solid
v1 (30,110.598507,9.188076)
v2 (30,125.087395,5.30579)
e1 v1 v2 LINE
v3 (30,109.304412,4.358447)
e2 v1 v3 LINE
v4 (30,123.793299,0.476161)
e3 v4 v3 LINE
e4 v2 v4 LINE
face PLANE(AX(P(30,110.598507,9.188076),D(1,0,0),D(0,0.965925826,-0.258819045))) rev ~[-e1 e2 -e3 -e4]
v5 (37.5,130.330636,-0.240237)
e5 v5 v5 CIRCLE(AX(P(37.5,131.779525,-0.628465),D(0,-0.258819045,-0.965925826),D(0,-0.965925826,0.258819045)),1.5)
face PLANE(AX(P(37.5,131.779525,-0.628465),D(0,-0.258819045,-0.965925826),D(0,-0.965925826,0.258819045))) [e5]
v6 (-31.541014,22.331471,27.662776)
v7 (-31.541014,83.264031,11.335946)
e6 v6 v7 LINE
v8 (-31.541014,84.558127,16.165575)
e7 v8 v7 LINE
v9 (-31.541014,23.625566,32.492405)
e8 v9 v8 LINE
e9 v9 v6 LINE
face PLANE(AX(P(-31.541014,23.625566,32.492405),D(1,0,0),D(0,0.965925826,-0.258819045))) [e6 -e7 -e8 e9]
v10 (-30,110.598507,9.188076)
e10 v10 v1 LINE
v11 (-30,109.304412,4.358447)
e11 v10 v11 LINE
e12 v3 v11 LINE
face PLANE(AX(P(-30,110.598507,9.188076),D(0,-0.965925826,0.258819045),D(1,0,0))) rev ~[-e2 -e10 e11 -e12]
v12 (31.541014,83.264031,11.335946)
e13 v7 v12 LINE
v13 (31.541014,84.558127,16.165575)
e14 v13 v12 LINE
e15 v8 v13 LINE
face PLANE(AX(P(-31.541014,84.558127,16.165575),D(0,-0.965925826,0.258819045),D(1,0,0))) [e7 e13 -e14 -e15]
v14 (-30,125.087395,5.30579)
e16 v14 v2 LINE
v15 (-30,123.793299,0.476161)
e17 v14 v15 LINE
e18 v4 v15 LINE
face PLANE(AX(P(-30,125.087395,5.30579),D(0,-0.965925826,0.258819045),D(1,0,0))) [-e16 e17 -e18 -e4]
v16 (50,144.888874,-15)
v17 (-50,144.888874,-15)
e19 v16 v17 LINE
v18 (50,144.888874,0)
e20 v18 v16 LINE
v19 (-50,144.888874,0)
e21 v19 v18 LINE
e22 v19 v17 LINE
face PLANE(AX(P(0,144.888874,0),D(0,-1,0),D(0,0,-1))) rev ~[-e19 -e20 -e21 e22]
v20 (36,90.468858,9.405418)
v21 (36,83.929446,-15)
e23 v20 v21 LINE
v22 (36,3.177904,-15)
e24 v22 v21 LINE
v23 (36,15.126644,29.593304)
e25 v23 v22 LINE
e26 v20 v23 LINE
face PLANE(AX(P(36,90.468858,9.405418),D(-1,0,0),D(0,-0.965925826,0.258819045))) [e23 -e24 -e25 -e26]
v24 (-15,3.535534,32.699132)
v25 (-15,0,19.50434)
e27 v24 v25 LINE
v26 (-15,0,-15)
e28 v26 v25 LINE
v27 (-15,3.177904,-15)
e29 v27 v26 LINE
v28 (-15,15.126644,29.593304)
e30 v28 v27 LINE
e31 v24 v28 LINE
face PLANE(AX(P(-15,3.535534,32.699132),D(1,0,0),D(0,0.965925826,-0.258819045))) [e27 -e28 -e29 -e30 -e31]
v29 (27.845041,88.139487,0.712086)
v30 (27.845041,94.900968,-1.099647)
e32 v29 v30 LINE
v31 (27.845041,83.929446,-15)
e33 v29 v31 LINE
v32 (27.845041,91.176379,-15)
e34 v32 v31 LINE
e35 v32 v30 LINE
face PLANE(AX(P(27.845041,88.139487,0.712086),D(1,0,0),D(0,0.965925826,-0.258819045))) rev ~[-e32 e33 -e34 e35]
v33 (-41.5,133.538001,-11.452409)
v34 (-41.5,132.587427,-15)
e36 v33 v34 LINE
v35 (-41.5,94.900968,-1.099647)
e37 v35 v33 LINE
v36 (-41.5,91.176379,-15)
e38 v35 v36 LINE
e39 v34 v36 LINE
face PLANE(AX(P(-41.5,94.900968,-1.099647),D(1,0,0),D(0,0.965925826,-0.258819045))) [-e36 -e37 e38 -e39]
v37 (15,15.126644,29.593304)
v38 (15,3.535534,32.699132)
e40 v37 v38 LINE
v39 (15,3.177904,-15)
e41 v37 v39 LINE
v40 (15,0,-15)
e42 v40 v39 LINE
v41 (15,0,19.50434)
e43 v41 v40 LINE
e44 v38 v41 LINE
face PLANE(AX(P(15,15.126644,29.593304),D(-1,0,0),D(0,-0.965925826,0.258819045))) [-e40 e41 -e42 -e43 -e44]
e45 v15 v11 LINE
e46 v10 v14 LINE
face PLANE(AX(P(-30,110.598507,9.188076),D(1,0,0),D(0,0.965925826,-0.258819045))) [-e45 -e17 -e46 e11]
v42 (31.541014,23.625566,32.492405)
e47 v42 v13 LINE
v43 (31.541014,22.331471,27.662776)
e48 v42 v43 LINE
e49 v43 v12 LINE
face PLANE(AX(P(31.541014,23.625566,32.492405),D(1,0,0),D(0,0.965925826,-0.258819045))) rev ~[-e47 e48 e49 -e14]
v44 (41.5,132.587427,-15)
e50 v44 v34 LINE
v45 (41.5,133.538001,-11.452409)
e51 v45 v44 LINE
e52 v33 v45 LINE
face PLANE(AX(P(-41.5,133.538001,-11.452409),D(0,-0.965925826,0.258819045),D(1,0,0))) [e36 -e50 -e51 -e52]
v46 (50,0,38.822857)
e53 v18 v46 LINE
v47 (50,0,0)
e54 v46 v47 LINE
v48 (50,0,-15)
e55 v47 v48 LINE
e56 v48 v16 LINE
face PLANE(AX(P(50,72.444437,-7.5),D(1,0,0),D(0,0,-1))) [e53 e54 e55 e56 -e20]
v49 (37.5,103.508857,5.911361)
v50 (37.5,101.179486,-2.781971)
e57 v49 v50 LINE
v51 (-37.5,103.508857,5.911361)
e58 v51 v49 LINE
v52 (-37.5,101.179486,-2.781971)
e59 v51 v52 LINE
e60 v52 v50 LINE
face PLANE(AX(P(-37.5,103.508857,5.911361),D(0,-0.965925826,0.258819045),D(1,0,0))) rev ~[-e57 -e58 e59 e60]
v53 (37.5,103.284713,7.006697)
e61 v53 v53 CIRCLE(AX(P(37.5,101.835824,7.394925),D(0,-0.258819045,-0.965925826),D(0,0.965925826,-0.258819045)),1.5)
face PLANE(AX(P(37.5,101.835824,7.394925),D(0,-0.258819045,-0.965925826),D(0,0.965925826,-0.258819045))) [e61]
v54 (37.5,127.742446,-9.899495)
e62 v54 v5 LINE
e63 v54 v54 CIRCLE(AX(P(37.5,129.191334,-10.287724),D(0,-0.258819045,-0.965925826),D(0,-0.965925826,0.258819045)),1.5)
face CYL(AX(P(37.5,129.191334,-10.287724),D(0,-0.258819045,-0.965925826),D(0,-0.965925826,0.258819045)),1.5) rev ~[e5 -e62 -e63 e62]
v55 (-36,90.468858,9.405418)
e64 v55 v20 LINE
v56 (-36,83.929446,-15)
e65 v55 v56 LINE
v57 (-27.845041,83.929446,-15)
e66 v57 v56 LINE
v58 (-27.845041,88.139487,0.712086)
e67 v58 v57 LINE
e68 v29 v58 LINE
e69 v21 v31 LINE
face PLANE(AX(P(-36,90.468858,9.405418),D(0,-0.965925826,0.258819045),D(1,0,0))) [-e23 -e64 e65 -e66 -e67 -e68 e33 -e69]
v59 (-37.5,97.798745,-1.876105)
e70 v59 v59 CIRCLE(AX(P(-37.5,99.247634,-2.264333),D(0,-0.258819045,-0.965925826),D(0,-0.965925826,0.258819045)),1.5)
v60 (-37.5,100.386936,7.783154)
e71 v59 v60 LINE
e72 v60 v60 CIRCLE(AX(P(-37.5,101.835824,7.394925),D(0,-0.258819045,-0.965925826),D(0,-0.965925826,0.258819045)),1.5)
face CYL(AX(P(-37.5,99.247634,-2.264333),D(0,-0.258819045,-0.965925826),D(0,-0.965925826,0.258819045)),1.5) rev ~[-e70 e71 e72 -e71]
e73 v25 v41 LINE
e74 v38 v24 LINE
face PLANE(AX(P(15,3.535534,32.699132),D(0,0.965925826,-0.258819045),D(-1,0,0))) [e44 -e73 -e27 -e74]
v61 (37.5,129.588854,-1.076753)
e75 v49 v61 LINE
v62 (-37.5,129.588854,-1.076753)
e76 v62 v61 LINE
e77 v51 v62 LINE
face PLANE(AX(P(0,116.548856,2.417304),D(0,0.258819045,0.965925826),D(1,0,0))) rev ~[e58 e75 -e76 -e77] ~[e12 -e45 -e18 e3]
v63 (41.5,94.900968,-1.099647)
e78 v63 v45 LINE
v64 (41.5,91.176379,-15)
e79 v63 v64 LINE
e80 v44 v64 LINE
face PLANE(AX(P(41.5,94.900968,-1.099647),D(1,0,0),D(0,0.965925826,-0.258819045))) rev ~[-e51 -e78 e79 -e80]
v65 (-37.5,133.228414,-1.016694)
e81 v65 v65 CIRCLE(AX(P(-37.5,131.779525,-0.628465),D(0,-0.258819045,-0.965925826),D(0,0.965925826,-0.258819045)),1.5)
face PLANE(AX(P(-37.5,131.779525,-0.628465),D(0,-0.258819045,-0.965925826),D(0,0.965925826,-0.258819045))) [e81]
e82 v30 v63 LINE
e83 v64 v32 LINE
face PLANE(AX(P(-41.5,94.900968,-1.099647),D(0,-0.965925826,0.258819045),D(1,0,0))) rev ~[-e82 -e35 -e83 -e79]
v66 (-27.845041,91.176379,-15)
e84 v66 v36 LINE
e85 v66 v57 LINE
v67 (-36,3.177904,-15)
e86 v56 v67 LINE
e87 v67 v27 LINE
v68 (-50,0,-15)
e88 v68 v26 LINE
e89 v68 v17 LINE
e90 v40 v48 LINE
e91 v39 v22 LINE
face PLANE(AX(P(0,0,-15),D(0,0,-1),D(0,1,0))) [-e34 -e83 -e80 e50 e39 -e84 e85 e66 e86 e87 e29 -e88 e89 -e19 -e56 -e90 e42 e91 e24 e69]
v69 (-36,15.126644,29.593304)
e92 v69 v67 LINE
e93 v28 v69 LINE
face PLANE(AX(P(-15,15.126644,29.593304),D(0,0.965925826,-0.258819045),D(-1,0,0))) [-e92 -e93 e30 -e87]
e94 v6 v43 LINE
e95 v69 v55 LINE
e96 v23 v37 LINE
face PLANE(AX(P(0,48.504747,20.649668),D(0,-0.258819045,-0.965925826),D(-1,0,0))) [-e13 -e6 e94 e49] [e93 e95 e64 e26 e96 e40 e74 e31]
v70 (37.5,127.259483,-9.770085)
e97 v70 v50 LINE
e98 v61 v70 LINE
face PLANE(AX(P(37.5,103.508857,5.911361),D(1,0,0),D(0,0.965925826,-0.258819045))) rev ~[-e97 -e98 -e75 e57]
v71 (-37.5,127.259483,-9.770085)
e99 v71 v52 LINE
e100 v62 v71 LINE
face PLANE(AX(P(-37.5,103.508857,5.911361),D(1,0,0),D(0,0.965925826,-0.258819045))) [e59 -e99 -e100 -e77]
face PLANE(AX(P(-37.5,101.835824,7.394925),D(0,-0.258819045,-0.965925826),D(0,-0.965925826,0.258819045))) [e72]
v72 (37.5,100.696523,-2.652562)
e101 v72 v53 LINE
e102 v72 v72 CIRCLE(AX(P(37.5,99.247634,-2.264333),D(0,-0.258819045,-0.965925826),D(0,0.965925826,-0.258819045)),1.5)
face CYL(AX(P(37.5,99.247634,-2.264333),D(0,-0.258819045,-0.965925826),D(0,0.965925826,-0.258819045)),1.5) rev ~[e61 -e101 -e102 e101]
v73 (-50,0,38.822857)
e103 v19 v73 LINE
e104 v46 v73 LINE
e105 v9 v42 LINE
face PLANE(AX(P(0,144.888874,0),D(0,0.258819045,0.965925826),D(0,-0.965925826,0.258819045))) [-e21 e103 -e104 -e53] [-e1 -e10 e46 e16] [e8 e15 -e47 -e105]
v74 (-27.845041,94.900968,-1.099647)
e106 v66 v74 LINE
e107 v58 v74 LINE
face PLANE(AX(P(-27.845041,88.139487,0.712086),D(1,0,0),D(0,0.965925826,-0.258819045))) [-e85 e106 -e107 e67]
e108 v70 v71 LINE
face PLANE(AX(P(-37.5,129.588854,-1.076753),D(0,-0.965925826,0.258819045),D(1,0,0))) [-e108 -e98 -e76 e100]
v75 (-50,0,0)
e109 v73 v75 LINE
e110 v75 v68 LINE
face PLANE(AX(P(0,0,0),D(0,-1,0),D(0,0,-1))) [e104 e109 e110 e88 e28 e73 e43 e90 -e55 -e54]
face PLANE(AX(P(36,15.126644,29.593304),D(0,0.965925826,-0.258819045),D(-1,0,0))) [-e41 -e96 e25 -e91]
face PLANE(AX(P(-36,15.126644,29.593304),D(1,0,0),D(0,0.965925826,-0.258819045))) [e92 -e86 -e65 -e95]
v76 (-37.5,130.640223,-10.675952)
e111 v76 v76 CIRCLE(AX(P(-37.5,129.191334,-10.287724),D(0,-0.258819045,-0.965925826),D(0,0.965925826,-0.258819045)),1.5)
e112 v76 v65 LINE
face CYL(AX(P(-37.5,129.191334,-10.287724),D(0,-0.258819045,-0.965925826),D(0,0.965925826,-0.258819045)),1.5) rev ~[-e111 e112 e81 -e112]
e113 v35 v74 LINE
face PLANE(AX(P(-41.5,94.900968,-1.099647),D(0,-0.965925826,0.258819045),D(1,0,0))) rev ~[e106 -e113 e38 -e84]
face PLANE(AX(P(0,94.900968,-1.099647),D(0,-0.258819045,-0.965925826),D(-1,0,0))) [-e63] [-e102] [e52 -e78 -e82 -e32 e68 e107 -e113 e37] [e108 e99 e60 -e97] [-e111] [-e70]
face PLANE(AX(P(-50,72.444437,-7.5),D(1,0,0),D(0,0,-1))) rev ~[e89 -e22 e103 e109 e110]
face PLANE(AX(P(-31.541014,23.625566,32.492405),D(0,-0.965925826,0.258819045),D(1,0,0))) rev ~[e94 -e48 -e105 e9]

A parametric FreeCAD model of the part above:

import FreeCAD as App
import Part
import Sketcher
from FreeCAD import Vector
Q = App.Units.Quantity

doc = App.newDocument("Part")
body = doc.addObject("PartDesign::Body", "Body")

sketch1 = doc.addObject("Sketcher::SketchObject", "Sketch")
body.addObject(sketch1)
sketch1.AttachmentSupport = (doc.YZ_Plane, [""])
sketch1.MapMode = "FlatFace"
sketch1.addGeometry([
    Part.LineSegment(Vector(0, 0, 0), Vector(145, 0, 0)),
    Part.LineSegment(Vector(145, 0, 0), Vector(0, 39, 0)),
    Part.LineSegment(Vector(0, 39, 0), Vector(0, 0, 0)),
], False)
sketch1.addConstraint([
    Sketcher.Constraint("Coincident", 0, 2, 1, 1),
    Sketcher.Constraint("Coincident", 1, 2, 2, 1),
    Sketcher.Constraint("Coincident", 2, 2, 0, 1),
    Sketcher.Constraint("Horizontal", 0),
    Sketcher.Constraint("Vertical", 2),
    Sketcher.Constraint("Coincident", 2, 2, -1, 1),
    Sketcher.Constraint("Angle", 1, Q("165 deg")),
    Sketcher.Constraint("Distance", 1, 150.0),
])
pad1 = doc.addObject("PartDesign::Pad", "Pad")
body.addObject(pad1)
pad1.Profile = sketch1
pad1.Length = 100
pad1.Midplane = True

sketch2 = doc.addObject("Sketcher::SketchObject", "Sketch001")
body.addObject(sketch2)
sketch2.AttachmentSupport = (doc.YZ_Plane, [""])
sketch2.MapMode = "FlatFace"
sketch2.addGeometry([
    Part.LineSegment(Vector(145, 0, 0), Vector(0, 0, 0)),
    Part.LineSegment(Vector(0, 0, 0), Vector(0, -15, 0)),
    Part.LineSegment(Vector(0, -15, 0), Vector(145, -15, 0)),
    Part.LineSegment(Vector(145, -15, 0), Vector(145, 0, 0)),
], False)
sketch2.addConstraint([
    Sketcher.Constraint("Coincident", 0, 2, 1, 1),
    Sketcher.Constraint("Coincident", 1, 2, 2, 1),
    Sketcher.Constraint("Coincident", 2, 2, 3, 1),
    Sketcher.Constraint("Coincident", 3, 2, 0, 1),
    Sketcher.Constraint("Horizontal", 0),
    Sketcher.Constraint("Vertical", 1),
    Sketcher.Constraint("Horizontal", 2),
    Sketcher.Constraint("Vertical", 3),
    Sketcher.Constraint("Coincident", 0, 2, -1, 1),
    Sketcher.Constraint("DistanceY", 1, 2, 1, 1, 15.0),
    Sketcher.Constraint("DistanceX", 0, 2, 0, 1, 144.888874),
])
pad2 = doc.addObject("PartDesign::Pad", "Pad001")
body.addObject(pad2)
pad2.Profile = sketch2
pad2.Length = 100
pad2.Midplane = True

sketch3 = doc.addObject("Sketcher::SketchObject", "Sketch002")
body.addObject(sketch3)
sketch3.Placement = App.Placement(Vector(0, 9.705714, 36.222218), App.Rotation(Vector(1, 0, 0), Vector(0, 0.965925826, -0.258819045), Vector(0, 0.258819045, 0.965925826), "ZXY"))
sketch3.addGeometry([
    Part.LineSegment(Vector(-32, 77, 0), Vector(-32, 14, 0)),
    Part.LineSegment(Vector(-32, 14, 0), Vector(32, 14, 0)),
    Part.LineSegment(Vector(32, 14, 0), Vector(32, 77, 0)),
    Part.LineSegment(Vector(32, 77, 0), Vector(-32, 77, 0)),
    Part.LineSegment(Vector(-30, 119, 0), Vector(-30, 104, 0)),
    Part.LineSegment(Vector(-30, 104, 0), Vector(30, 104, 0)),
    Part.LineSegment(Vector(30, 104, 0), Vector(30, 119, 0)),
    Part.LineSegment(Vector(30, 119, 0), Vector(-30, 119, 0)),
], False)
sketch3.addConstraint([
    Sketcher.Constraint("Coincident", 0, 2, 1, 1),
    Sketcher.Constraint("Coincident", 1, 2, 2, 1),
    Sketcher.Constraint("Coincident", 2, 2, 3, 1),
    Sketcher.Constraint("Coincident", 3, 2, 0, 1),
    Sketcher.Constraint("Coincident", 4, 2, 5, 1),
    Sketcher.Constraint("Coincident", 5, 2, 6, 1),
    Sketcher.Constraint("Coincident", 6, 2, 7, 1),
    Sketcher.Constraint("Coincident", 7, 2, 4, 1),
    Sketcher.Constraint("Vertical", 0),
    Sketcher.Constraint("Horizontal", 1),
    Sketcher.Constraint("Vertical", 2),
    Sketcher.Constraint("Horizontal", 3),
    Sketcher.Constraint("Vertical", 4),
    Sketcher.Constraint("Horizontal", 5),
    Sketcher.Constraint("Vertical", 6),
    Sketcher.Constraint("Horizontal", 7),
    Sketcher.Constraint("Equal", 3, 0),
    Sketcher.Constraint("DistanceX", 5, 1, 5, 2, 60.0),
    Sketcher.Constraint("DistanceY", 4, 2, 4, 1, 15.0),
    Sketcher.Constraint("DistanceX", 4, 2, -1, 1, 30.0),
    Sketcher.Constraint("DistanceX", 1, 1, 1, 2, 63.082029),
    Sketcher.Constraint("DistanceY", -1, 1, 0, 2, 14.410891),
    Sketcher.Constraint("DistanceX", 0, 2, -1, 1, 31.541014),
    Sketcher.Constraint("DistanceY", -1, 1, 4, 2, 104.451905),
])
pocket1 = doc.addObject("PartDesign::Pocket", "Pocket")
body.addObject(pocket1)
pocket1.Profile = sketch3
pocket1.Type = "ThroughAll"

sketch4 = doc.addObject("Sketcher::SketchObject", "Sketch003")
body.addObject(sketch4)
sketch4.Placement = App.Placement(Vector(0, 8.411619, 31.392589), App.Rotation(Vector(1, 0, 0), Vector(0, 0.965925826, -0.258819045), Vector(0, 0.258819045, 0.965925826), "ZXY"))
sketch4.addGeometry([
    Part.LineSegment(Vector(36, 85, 0), Vector(-36, 85, 0)),
    Part.LineSegment(Vector(-36, 85, 0), Vector(-36, 7, 0)),
    Part.LineSegment(Vector(-36, 7, 0), Vector(-15, 7, 0)),
    Part.LineSegment(Vector(-15, 7, 0), Vector(-15, -5, 0)),
    Part.LineSegment(Vector(-15, -5, 0), Vector(15, -5, 0)),
    Part.LineSegment(Vector(15, -5, 0), Vector(15, 7, 0)),
    Part.LineSegment(Vector(15, 7, 0), Vector(36, 7, 0)),
    Part.LineSegment(Vector(36, 7, 0), Vector(36, 85, 0)),
    Part.LineSegment(Vector(-38, 125, 0), Vector(-38, 98, 0)),
    Part.LineSegment(Vector(-38, 98, 0), Vector(38, 98, 0)),
    Part.LineSegment(Vector(38, 98, 0), Vector(38, 125, 0)),
    Part.LineSegment(Vector(38, 125, 0), Vector(-38, 125, 0)),
], False)
sketch4.addConstraint([
    Sketcher.Constraint("Coincident", 0, 2, 1, 1),
    Sketcher.Constraint("Coincident", 1, 2, 2, 1),
    Sketcher.Constraint("Coincident", 2, 2, 3, 1),
    Sketcher.Constraint("Coincident", 3, 2, 4, 1),
    Sketcher.Constraint("Coincident", 4, 2, 5, 1),
    Sketcher.Constraint("Coincident", 5, 2, 6, 1),
    Sketcher.Constraint("Coincident", 6, 2, 7, 1),
    Sketcher.Constraint("Coincident", 7, 2, 0, 1),
    Sketcher.Constraint("Coincident", 8, 2, 9, 1),
    Sketcher.Constraint("Coincident", 9, 2, 10, 1),
    Sketcher.Constraint("Coincident", 10, 2, 11, 1),
    Sketcher.Constraint("Coincident", 11, 2, 8, 1),
    Sketcher.Constraint("Horizontal", 0),
    Sketcher.Constraint("Vertical", 1),
    Sketcher.Constraint("Horizontal", 2),
    Sketcher.Constraint("Vertical", 3),
    Sketcher.Constraint("Horizontal", 4),
    Sketcher.Constraint("Vertical", 5),
    Sketcher.Constraint("Horizontal", 6),
    Sketcher.Constraint("Vertical", 7),
    Sketcher.Constraint("Vertical", 8),
    Sketcher.Constraint("Horizontal", 9),
    Sketcher.Constraint("Vertical", 10),
    Sketcher.Constraint("Horizontal", 11),
    Sketcher.Constraint("Symmetric", 2, 2, 5, 2, -2),
    Sketcher.Constraint("Equal", 2, 6),
    Sketcher.Constraint("DistanceX", 0, 2, 0, 1, 72.0),
    Sketcher.Constraint("DistanceX", 2, 1, 2, 2, 21.0),
    Sketcher.Constraint("DistanceX", 9, 1, 9, 2, 75.0),
    Sketcher.Constraint("DistanceY", 1, 2, 1, 1, 78.0),
    Sketcher.Constraint("DistanceY", 3, 2, 3, 1, 12.0),
    Sketcher.Constraint("DistanceY", 8, 2, 8, 1, 27.0),
    Sketcher.Constraint("DistanceX", 8, 2, -1, 1, 37.5),
    Sketcher.Constraint("DistanceY", 0, 2, 8, 2, 13.5),
    Sketcher.Constraint("DistanceY", -1, 1, 0, 2, 84.951905),
])
pocket2 = doc.addObject("PartDesign::Pocket", "Pocket001")
body.addObject(pocket2)
pocket2.Profile = sketch4
pocket2.Type = "ThroughAll"

sketch5 = doc.addObject("Sketcher::SketchObject", "Sketch004")
body.addObject(sketch5)
sketch5.Placement = App.Placement(Vector(0, 6.082248, 22.699257), App.Rotation(Vector(1, 0, 0), Vector(0, 0.965925826, -0.258819045), Vector(0, 0.258819045, 0.965925826), "ZXY"))
sketch5.addGeometry([
    Part.LineSegment(Vector(-42, 132, 0), Vector(-42, 92, 0)),
    Part.LineSegment(Vector(-42, 92, 0), Vector(42, 92, 0)),
    Part.LineSegment(Vector(42, 92, 0), Vector(42, 132, 0)),
    Part.LineSegment(Vector(42, 132, 0), Vector(-42, 132, 0)),
], False)
sketch5.addConstraint([
    Sketcher.Constraint("Coincident", 0, 2, 1, 1),
    Sketcher.Constraint("Coincident", 1, 2, 2, 1),
    Sketcher.Constraint("Coincident", 2, 2, 3, 1),
    Sketcher.Constraint("Coincident", 3, 2, 0, 1),
    Sketcher.Constraint("Vertical", 0),
    Sketcher.Constraint("Horizontal", 1),
    Sketcher.Constraint("Vertical", 2),
    Sketcher.Constraint("Horizontal", 3),
    Sketcher.Constraint("DistanceX", 1, 1, 1, 2, 83.0),
    Sketcher.Constraint("DistanceY", 0, 2, 0, 1, 40.0),
    Sketcher.Constraint("DistanceX", 0, 2, -1, 1, 41.5),
    Sketcher.Constraint("DistanceY", -1, 1, 0, 2, 91.951905),
])
pocket3 = doc.addObject("PartDesign::Pocket", "Pocket002")
body.addObject(pocket3)
pocket3.Profile = sketch5
pocket3.Length = 100

sketch6 = doc.addObject("Sketcher::SketchObject", "Sketch005")
body.addObject(sketch6)
sketch6.Placement = App.Placement(Vector(0, 6.082248, 22.699257), App.Rotation(Vector(-1, 0, 0), Vector(0, 0.965925826, -0.258819045), Vector(0, -0.258819045, -0.965925826), "ZXY"))
sketch6.addGeometry([
    Part.Circle(Vector(37.5, 127.5, 0), Vector(0, 0, 1), 1.5),
    Part.Circle(Vector(-37.5, 127.5, 0), Vector(0, 0, 1), 1.5),
    Part.Circle(Vector(37.5, 96.5, 0), Vector(0, 0, 1), 1.5),
    Part.Circle(Vector(-37.5, 96.5, 0), Vector(0, 0, 1), 1.5),
], False)
sketch6.addConstraint([
    Sketcher.Constraint("Equal", 0, 1),
    Sketcher.Constraint("Equal", 1, 2),
    Sketcher.Constraint("Equal", 2, 3),
    Sketcher.Constraint("Symmetric", 0, 3, 1, 3, -2),
    Sketcher.Constraint("Symmetric", 2, 3, 3, 3, -2),
    Sketcher.Constraint("Vertical", 0, 3, 2, 3),
    Sketcher.Constraint("Diameter", 0, 3.0),
    Sketcher.Constraint("DistanceX", 1, 3, 0, 3, 75.0),
    Sketcher.Constraint("DistanceY", 2, 3, 0, 3, 31.0),
    Sketcher.Constraint("DistanceY", -1, 1, 0, 3, 127.451905),
])
pocket4 = doc.addObject("PartDesign::Pocket", "Pocket003")
body.addObject(pocket4)
pocket4.Profile = sketch6
pocket4.Length = 10

sketch7 = doc.addObject("Sketcher::SketchObject", "Sketch006")
body.addObject(sketch7)
sketch7.Placement = App.Placement(Vector(0, 6.082248, 22.699257), App.Rotation(Vector(-1, 0, 0), Vector(0, 0.965925826, -0.258819045), Vector(0, -0.258819045, -0.965925826), "ZXY"))
sketch7.addGeometry([
    Part.LineSegment(Vector(-28, 99, 0), Vector(-28, 85, 0)),
    Part.LineSegment(Vector(-28, 85, 0), Vector(28, 85, 0)),
    Part.LineSegment(Vector(28, 85, 0), Vector(28, 99, 0)),
    Part.LineSegment(Vector(28, 99, 0), Vector(-28, 99, 0)),
], False)
sketch7.addConstraint([
    Sketcher.Constraint("Coincident", 0, 2, 1, 1),
    Sketcher.Constraint("Coincident", 1, 2, 2, 1),
    Sketcher.Constraint("Coincident", 2, 2, 3, 1),
    Sketcher.Constraint("Coincident", 3, 2, 0, 1),
    Sketcher.Constraint("Vertical", 0),
    Sketcher.Constraint("Horizontal", 1),
    Sketcher.Constraint("Vertical", 2),
    Sketcher.Constraint("Horizontal", 3),
    Sketcher.Constraint("DistanceY", 0, 2, 0, 1, 14.0),
    Sketcher.Constraint("DistanceX", 1, 1, 1, 2, 55.690083),
    Sketcher.Constraint("DistanceX", 0, 2, -1, 1, 27.845041),
    Sketcher.Constraint("DistanceY", -1, 1, 0, 2, 84.951905),
])
pocket5 = doc.addObject("PartDesign::Pocket", "Pocket004")
body.addObject(pocket5)
pocket5.Profile = sketch7
pocket5.Type = "ThroughAll"
pocket5.Reversed = True

doc.recompute()
